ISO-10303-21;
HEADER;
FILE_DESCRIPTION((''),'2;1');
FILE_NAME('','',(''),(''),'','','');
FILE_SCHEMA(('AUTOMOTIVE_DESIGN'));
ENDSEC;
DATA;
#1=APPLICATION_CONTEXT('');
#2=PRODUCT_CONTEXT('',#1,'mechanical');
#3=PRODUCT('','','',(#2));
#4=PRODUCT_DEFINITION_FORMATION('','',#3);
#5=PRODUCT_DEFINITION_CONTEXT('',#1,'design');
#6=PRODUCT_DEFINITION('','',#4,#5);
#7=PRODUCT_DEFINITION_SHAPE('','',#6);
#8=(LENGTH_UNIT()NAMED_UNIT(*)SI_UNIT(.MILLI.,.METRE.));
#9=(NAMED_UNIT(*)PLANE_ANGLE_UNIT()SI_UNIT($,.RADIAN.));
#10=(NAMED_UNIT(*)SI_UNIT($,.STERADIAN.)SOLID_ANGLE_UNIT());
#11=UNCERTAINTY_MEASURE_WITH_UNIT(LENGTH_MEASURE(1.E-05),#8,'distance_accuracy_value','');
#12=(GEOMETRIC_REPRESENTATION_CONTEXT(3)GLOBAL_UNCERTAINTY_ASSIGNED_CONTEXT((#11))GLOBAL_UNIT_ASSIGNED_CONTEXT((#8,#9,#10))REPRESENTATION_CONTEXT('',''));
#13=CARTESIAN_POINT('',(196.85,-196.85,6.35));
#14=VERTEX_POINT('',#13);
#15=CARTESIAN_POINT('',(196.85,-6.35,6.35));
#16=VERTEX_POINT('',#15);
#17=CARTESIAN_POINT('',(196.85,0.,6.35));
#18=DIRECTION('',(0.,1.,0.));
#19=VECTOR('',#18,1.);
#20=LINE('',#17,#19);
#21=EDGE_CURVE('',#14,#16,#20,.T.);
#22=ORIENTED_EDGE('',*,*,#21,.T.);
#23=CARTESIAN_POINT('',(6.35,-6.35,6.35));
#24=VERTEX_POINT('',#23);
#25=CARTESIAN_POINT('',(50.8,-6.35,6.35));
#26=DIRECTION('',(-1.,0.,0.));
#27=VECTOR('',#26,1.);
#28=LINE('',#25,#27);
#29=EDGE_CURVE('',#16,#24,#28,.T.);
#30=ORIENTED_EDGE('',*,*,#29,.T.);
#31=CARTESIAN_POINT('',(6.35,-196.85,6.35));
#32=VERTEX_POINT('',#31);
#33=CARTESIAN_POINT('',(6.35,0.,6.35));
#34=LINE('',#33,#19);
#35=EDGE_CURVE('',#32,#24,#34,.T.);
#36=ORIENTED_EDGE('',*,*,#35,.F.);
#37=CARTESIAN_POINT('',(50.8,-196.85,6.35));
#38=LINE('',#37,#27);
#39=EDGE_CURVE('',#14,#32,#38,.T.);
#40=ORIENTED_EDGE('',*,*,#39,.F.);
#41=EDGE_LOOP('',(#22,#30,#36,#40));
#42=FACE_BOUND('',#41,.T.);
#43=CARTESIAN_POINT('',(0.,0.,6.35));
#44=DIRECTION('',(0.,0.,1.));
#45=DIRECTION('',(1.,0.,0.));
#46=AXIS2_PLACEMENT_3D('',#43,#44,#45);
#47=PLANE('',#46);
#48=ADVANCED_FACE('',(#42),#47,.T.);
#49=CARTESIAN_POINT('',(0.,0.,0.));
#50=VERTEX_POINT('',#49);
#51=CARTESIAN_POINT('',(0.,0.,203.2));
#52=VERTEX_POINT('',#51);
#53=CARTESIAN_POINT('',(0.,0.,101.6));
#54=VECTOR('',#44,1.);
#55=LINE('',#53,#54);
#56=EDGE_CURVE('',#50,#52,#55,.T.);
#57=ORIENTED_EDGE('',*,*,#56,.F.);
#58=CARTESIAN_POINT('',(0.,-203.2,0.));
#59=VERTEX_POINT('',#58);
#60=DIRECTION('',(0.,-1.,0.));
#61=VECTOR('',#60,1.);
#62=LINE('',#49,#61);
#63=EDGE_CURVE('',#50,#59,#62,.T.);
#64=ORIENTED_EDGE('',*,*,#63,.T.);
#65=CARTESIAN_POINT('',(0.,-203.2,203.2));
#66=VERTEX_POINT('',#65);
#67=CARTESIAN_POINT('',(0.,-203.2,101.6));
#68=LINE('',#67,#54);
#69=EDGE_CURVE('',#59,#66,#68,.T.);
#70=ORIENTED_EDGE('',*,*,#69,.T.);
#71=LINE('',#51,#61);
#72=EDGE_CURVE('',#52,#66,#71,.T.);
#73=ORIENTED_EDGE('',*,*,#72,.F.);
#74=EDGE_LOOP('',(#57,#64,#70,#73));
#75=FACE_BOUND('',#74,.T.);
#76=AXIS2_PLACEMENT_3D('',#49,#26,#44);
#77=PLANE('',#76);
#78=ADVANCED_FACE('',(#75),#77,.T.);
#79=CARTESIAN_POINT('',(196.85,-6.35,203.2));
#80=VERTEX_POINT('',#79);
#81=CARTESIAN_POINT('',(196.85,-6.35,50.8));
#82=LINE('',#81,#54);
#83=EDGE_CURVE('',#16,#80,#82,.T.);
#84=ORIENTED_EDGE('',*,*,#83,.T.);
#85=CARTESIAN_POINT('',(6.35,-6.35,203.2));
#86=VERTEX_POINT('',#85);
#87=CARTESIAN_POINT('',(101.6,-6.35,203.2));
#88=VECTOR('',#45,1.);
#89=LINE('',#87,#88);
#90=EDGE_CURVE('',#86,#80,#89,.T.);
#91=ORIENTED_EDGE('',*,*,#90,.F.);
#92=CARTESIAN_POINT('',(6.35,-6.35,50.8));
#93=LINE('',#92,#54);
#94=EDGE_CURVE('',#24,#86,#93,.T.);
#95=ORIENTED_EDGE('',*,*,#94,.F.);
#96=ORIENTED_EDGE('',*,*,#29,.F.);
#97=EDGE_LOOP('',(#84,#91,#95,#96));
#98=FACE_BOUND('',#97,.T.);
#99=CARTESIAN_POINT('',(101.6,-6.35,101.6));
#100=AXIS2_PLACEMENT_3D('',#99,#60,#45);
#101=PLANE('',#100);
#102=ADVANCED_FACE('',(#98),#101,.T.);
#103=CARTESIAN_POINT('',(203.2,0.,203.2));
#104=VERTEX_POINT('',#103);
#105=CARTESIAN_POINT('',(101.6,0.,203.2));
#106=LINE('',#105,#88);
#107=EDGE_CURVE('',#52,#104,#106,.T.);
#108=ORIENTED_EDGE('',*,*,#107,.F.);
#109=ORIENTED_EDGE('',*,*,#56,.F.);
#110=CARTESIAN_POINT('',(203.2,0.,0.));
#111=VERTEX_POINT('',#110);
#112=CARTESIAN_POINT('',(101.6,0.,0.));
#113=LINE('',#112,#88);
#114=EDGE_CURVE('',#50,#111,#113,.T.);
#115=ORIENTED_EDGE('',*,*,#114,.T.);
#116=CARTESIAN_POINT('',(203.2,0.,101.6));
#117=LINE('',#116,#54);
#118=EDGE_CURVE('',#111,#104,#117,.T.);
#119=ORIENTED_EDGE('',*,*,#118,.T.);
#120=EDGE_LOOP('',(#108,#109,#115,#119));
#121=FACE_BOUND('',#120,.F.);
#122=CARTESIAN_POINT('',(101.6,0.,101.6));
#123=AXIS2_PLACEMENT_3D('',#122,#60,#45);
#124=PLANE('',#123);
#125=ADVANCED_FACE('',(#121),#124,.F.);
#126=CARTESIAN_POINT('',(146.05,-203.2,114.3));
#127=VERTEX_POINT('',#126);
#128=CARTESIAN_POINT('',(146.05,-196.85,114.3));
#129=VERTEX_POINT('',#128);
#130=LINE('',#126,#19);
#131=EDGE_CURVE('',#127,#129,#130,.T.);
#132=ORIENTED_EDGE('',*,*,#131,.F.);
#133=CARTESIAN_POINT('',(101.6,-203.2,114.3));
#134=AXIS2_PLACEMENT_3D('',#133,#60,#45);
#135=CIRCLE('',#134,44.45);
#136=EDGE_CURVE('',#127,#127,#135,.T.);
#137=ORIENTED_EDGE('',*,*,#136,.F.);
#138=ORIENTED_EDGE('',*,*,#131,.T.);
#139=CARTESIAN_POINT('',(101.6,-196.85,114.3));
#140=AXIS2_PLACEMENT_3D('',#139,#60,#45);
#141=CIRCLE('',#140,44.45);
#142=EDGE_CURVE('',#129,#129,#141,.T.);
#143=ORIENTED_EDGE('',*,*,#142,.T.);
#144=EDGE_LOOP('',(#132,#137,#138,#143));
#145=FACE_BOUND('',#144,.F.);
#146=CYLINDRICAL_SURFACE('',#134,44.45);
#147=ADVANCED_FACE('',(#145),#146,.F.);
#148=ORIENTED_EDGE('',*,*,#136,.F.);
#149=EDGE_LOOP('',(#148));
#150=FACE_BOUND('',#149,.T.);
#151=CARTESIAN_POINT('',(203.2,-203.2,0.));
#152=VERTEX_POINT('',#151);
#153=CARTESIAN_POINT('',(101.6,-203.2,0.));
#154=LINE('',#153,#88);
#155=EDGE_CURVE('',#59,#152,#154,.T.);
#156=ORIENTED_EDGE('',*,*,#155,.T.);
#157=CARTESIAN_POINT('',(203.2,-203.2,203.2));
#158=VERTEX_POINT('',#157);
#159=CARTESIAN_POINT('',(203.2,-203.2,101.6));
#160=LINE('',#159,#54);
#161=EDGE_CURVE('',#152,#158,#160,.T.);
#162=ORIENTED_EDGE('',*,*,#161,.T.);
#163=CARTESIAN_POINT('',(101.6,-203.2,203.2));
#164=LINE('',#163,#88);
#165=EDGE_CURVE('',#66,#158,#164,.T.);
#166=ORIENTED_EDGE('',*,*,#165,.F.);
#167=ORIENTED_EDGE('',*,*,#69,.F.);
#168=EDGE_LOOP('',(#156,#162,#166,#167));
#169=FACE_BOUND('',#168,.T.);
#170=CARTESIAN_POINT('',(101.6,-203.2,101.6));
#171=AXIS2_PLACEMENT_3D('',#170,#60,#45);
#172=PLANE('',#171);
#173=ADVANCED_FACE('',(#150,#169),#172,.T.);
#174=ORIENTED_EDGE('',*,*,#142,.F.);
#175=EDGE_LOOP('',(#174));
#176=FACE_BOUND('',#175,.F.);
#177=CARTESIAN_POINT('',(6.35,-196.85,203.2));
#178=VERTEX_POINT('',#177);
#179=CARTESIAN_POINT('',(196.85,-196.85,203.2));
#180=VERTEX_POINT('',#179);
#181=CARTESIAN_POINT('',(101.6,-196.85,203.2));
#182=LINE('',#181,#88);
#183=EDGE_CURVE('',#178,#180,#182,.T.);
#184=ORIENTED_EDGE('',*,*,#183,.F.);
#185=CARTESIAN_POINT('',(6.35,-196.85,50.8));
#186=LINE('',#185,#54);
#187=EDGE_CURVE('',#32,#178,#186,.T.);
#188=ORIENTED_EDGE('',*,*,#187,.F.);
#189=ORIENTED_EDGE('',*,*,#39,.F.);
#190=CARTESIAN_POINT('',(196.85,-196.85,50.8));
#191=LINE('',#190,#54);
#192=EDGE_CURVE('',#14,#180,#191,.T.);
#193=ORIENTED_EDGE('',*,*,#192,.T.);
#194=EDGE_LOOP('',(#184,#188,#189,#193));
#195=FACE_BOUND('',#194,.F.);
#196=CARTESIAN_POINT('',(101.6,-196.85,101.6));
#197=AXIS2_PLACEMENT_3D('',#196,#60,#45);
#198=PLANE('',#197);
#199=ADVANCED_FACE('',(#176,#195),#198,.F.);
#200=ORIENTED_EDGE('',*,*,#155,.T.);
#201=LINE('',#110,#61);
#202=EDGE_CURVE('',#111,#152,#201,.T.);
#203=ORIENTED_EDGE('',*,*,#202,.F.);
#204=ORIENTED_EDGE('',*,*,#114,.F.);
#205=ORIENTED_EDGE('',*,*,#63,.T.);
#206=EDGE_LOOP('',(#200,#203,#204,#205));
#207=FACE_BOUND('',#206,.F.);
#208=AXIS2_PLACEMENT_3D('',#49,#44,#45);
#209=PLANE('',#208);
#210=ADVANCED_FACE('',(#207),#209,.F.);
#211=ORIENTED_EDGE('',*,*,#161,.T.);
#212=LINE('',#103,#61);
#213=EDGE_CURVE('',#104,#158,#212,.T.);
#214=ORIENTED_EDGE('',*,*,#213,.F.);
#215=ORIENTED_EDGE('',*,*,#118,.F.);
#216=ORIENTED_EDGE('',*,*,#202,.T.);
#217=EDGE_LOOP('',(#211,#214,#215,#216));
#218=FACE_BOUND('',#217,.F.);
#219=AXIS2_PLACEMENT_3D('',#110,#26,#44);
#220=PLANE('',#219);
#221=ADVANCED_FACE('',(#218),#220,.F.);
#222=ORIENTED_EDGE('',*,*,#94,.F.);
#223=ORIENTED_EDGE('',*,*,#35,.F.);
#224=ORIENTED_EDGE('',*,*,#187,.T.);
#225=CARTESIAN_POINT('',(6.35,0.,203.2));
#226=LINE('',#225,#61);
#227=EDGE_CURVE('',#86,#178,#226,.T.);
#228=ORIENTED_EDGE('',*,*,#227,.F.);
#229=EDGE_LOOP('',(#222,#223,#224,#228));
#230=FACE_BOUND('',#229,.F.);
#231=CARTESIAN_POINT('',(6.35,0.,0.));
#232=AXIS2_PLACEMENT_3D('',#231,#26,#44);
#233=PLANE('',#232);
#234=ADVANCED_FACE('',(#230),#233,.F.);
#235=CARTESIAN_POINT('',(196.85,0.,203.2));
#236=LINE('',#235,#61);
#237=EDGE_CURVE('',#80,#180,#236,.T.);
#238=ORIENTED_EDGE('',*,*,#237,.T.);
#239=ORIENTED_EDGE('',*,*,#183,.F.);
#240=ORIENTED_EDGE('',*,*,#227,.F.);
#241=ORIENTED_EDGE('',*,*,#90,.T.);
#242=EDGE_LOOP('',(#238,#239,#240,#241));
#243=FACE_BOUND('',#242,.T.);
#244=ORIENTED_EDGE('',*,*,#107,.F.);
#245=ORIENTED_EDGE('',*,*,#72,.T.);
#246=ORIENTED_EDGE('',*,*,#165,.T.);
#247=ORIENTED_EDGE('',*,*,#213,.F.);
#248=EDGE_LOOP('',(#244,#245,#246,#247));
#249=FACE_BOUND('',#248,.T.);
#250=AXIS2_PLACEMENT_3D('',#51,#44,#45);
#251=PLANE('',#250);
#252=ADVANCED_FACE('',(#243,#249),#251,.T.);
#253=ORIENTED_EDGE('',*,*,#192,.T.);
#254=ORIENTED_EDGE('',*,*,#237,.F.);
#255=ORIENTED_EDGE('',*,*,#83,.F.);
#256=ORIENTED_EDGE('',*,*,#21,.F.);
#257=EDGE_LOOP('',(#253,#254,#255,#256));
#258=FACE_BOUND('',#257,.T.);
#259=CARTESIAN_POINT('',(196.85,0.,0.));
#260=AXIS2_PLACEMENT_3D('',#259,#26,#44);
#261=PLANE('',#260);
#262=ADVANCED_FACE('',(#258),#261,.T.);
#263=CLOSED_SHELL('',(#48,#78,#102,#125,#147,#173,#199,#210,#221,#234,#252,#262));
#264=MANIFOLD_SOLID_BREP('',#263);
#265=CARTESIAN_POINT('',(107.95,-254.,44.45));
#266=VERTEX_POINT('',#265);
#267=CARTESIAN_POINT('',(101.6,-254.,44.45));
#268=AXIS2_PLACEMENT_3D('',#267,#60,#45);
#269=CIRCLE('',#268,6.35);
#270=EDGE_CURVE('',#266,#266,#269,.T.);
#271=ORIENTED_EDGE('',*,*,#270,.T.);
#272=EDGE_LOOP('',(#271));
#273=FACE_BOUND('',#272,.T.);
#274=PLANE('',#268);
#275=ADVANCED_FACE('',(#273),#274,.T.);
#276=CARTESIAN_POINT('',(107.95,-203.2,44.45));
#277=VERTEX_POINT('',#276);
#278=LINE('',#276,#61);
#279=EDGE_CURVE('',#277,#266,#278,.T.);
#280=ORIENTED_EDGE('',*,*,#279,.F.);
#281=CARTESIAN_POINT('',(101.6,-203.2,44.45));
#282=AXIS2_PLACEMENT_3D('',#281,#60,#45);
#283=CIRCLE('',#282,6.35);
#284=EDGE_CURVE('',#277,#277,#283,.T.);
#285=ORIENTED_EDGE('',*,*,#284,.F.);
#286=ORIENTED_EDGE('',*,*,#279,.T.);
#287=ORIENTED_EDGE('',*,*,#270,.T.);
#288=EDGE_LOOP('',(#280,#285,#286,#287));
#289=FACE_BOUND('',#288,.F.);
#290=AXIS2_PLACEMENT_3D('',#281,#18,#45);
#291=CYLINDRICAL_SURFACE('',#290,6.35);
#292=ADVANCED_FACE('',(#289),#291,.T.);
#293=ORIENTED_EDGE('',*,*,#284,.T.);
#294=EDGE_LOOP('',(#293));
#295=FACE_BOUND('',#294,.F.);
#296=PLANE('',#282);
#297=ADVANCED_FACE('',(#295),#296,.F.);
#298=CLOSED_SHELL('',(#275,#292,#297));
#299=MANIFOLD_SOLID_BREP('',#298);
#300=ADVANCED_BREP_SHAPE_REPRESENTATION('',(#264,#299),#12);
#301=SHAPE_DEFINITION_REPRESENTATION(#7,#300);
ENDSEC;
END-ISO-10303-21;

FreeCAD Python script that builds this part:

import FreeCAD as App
import Part
import Sketcher

V = App.Vector
Q = App.Units.Quantity


def faces_at(feature, points):
    """Names of the faces that lie closest to the given points."""
    faces = feature.Shape.Faces
    near = lambda p: min(range(len(faces)), key=lambda i: faces[i].distToShape(Part.Vertex(*p))[0])
    return sorted({f"Face{near(p) + 1}" for p in points})

doc = App.newDocument("Part")
params = doc.addObject("Spreadsheet::Sheet", "Params")
for row, (alias, value) in enumerate([
    ("sketch1_width", "8 in"),
    ("pad1_length", "8 in"),
    ("thickness_wall", "0.25 in"),
    ("sketch2_diameter", "3.5 in"),
    ("pocket1_length", "0.25 in"),
    ("sketch3_diameter", "0.5 in"),
    ("pad2_length", "2 in"),
], start=1):
    params.set(f"A{row}", alias)
    params.set(f"B{row}", "=" + value)
    params.setAlias(f"B{row}", alias)

body = doc.addObject("PartDesign::Body", "Body")

# Sketch on XZ plane
sketch1 = body.newObject("Sketcher::SketchObject", "Sketch")
sketch1.AttachmentSupport = (doc.getObject("XZ_Plane"), [""])
sketch1.MapMode = "FlatFace"
sketch1.addGeometry([
    Part.LineSegment(V(0, 203, 0), V(0, 0, 0)),
    Part.LineSegment(V(0, 0, 0), V(203, 0, 0)),
    Part.LineSegment(V(203, 0, 0), V(203, 203, 0)),
    Part.LineSegment(V(203, 203, 0), V(0, 203, 0)),
], False)
sketch1.addConstraint([
    Sketcher.Constraint("Coincident", 0, 2, 1, 1),
    Sketcher.Constraint("Coincident", 1, 2, 2, 1),
    Sketcher.Constraint("Coincident", 2, 2, 3, 1),
    Sketcher.Constraint("Coincident", 3, 2, 0, 1),
    Sketcher.Constraint("Vertical", 0),
    Sketcher.Constraint("Horizontal", 1),
    Sketcher.Constraint("Vertical", 2),
    Sketcher.Constraint("Horizontal", 3),
    Sketcher.Constraint("Coincident", 0, 2, -1, 1),
    Sketcher.Constraint("Equal", 3, 0),
    Sketcher.Constraint("DistanceX", 1, 1, 1, 2, Q("8 in")),
])
sketch1.setExpression("Constraints[10]", "Params.sketch1_width")
pad1 = body.newObject("PartDesign::Pad", "Pad")
pad1.Profile = sketch1
pad1.setExpression("Length", "Params.pad1_length")
doc.recompute()

thickness = body.newObject("PartDesign::Thickness", "Thickness")
thickness.Base = (pad1, faces_at(pad1, [(101.6, -101.6, 203.2)]))
thickness.setExpression("Value", "Params.thickness_wall")
thickness.Reversed = True
thickness.Join = "Arc"

# Sketch on XZ plane
sketch2 = body.newObject("Sketcher::SketchObject", "Sketch001")
sketch2.AttachmentSupport = (doc.getObject("XZ_Plane"), [""])
sketch2.MapMode = "FlatFace"
sketch2.AttachmentOffset = App.Placement(V(0, 0, 8 * 25.4), App.Rotation())
sketch2.addGeometry(Part.Circle(V(102, 114, 0), V(0, 0, 1), 44), False)
sketch2.addConstraint([
    Sketcher.Constraint("Diameter", 0, Q("3.5 in")),
    Sketcher.Constraint("DistanceX", -1, 1, 0, 3, Q("4 in")),
    Sketcher.Constraint("DistanceY", -1, 1, 0, 3, Q("4.5 in")),
])
sketch2.setExpression("Constraints[0]", "Params.sketch2_diameter")
pocket1 = body.newObject("PartDesign::Pocket", "Pocket")
pocket1.Profile = sketch2
pocket1.setExpression("Length", "Params.pocket1_length")
body2 = doc.addObject("PartDesign::Body", "Body001")

# Sketch on XZ plane
sketch3 = body2.newObject("Sketcher::SketchObject", "Sketch002")
sketch3.AttachmentSupport = (doc.getObject("XZ_Plane001"), [""])
sketch3.MapMode = "FlatFace"
sketch3.AttachmentOffset = App.Placement(V(0, 0, 8 * 25.4), App.Rotation())
sketch3.addGeometry(Part.Circle(V(102, 44, 0), V(0, 0, 1), 6), False)
sketch3.addConstraint([
    Sketcher.Constraint("Diameter", 0, Q("0.5 in")),
    Sketcher.Constraint("DistanceX", -1, 1, 0, 3, Q("4 in")),
    Sketcher.Constraint("DistanceY", -1, 1, 0, 3, Q("1.75 in")),
])
sketch3.setExpression("Constraints[0]", "Params.sketch3_diameter")
pad2 = body2.newObject("PartDesign::Pad", "Pad001")
pad2.Profile = sketch3
pad2.setExpression("Length", "Params.pad2_length")

doc.recompute()
